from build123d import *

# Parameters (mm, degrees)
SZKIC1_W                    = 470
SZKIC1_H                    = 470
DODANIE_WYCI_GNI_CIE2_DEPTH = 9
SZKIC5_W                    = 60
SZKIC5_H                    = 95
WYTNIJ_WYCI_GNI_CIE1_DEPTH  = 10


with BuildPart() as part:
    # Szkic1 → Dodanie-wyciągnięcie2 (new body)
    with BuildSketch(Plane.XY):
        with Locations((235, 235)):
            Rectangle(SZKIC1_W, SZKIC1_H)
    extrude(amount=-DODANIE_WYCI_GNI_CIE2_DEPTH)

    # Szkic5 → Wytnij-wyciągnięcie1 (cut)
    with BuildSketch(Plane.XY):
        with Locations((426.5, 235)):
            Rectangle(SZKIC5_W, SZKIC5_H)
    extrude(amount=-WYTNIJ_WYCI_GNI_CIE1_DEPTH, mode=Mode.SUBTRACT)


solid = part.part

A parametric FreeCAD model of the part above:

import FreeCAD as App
import Part
import Sketcher

doc = App.newDocument("Part")
body = doc.addObject("PartDesign::Body", "Body")

# Sketch on XY plane
sketch1 = doc.addObject("Sketcher::SketchObject", "Sketch")
body.addObject(sketch1)
sketch1.AttachmentSupport = (doc.XY_Plane, [""])
sketch1.MapMode = "FlatFace"
sketch1.addGeometry(Part.LineSegment(App.Vector(0, 470, 0), App.Vector(0, 0, 0)), False)
sketch1.addGeometry(Part.LineSegment(App.Vector(0, 0, 0), App.Vector(470, 0, 0)), False)
sketch1.addGeometry(Part.LineSegment(App.Vector(470, 0, 0), App.Vector(470, 470, 0)), False)
sketch1.addGeometry(Part.LineSegment(App.Vector(470, 470, 0), App.Vector(0, 470, 0)), False)
sketch1.addConstraint(Sketcher.Constraint("Coincident", 0, 2, 1, 1))
sketch1.addConstraint(Sketcher.Constraint("Coincident", 1, 2, 2, 1))
sketch1.addConstraint(Sketcher.Constraint("Coincident", 2, 2, 3, 1))
sketch1.addConstraint(Sketcher.Constraint("Coincident", 3, 2, 0, 1))
sketch1.addConstraint(Sketcher.Constraint("Vertical", 0))
sketch1.addConstraint(Sketcher.Constraint("Horizontal", 1))
sketch1.addConstraint(Sketcher.Constraint("Vertical", 2))
sketch1.addConstraint(Sketcher.Constraint("Horizontal", 3))
sketch1.addConstraint(Sketcher.Constraint("Coincident", 0, 2, -1, 1))
sketch1.addConstraint(Sketcher.Constraint("Equal", 3, 0))
sketch1.addConstraint(Sketcher.Constraint("DistanceX", 1, 1, 1, 2, 470.0))
pad1 = doc.addObject("PartDesign::Pad", "Pad")
body.addObject(pad1)
pad1.Profile = sketch1
pad1.Length = 9
pad1.Reversed = True

# Sketch on XY plane
sketch2 = doc.addObject("Sketcher::SketchObject", "Sketch001")
body.addObject(sketch2)
sketch2.AttachmentSupport = (doc.XY_Plane, [""])
sketch2.MapMode = "FlatFace"
sketch2.addGeometry(Part.LineSegment(App.Vector(396, 282, 0), App.Vector(396, 188, 0)), False)
sketch2.addGeometry(Part.LineSegment(App.Vector(396, 188, 0), App.Vector(456, 188, 0)), False)
sketch2.addGeometry(Part.LineSegment(App.Vector(456, 188, 0), App.Vector(456, 282, 0)), False)
sketch2.addGeometry(Part.LineSegment(App.Vector(456, 282, 0), App.Vector(396, 282, 0)), False)
sketch2.addConstraint(Sketcher.Constraint("Coincident", 0, 2, 1, 1))
sketch2.addConstraint(Sketcher.Constraint("Coincident", 1, 2, 2, 1))
sketch2.addConstraint(Sketcher.Constraint("Coincident", 2, 2, 3, 1))
sketch2.addConstraint(Sketcher.Constraint("Coincident", 3, 2, 0, 1))
sketch2.addConstraint(Sketcher.Constraint("Vertical", 0))
sketch2.addConstraint(Sketcher.Constraint("Horizontal", 1))
sketch2.addConstraint(Sketcher.Constraint("Vertical", 2))
sketch2.addConstraint(Sketcher.Constraint("Horizontal", 3))
sketch2.addConstraint(Sketcher.Constraint("DistanceX", 1, 1, 1, 2, 60.0))
sketch2.addConstraint(Sketcher.Constraint("DistanceY", 0, 2, 0, 1, 95.0))
sketch2.addConstraint(Sketcher.Constraint("DistanceX", -1, 1, 0, 2, 396.5))
sketch2.addConstraint(Sketcher.Constraint("DistanceY", -1, 1, 0, 2, 187.5))
pocket1 = doc.addObject("PartDesign::Pocket", "Pocket")
body.addObject(pocket1)
pocket1.Profile = sketch2
pocket1.Length = 10

doc.recompute()
